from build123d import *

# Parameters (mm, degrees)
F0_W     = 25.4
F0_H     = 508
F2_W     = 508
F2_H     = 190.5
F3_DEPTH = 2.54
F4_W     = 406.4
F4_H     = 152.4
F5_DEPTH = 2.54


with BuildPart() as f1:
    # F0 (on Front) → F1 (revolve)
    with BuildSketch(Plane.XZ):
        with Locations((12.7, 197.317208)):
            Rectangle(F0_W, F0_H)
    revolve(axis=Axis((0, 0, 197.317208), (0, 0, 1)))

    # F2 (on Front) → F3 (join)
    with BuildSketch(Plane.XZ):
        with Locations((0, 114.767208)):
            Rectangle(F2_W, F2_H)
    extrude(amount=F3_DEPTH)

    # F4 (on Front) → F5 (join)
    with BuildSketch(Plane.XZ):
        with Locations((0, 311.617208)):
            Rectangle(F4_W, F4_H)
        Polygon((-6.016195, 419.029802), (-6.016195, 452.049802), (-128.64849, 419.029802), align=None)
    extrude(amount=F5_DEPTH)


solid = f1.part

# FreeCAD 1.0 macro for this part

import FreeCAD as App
import Part
import Sketcher
from FreeCAD import Vector
Q = App.Units.Quantity


def add_polygon(sketch, points):
    """Adds a closed chain of lines whose ends are joined by coincident constraints."""
    first, n = sketch.GeometryCount, len(points)
    for a, b in zip(points, points[1:] + points[:1]):
        sketch.addGeometry(Part.LineSegment(App.Vector(*a, 0), App.Vector(*b, 0)), False)
    for i in range(n):
        sketch.addConstraint(Sketcher.Constraint("Coincident", first + i, 2, first + (i + 1) % n, 1))

doc = App.newDocument("Part")
params = doc.addObject("Spreadsheet::Sheet", "Params")
for row, (alias, value) in enumerate([
    ("sketch1_width", "1 in"),
    ("sketch1_height", "20 in"),
    ("revolution_angle", "360 deg"),
    ("sketch2_width", "20 in"),
    ("sketch2_height", "7.5 in"),
    ("pad1_length", "0.1 in"),
    ("sketch3_width", "16 in"),
    ("sketch3_height", "6 in"),
    ("sketch3_length", "5 in"),
    ("sketch3_height2", "1.3 in"),
    ("pad2_length", "0.1 in"),
], start=1):
    params.set(f"A{row}", alias)
    params.set(f"B{row}", "=" + value)
    params.setAlias(f"B{row}", alias)

body = doc.addObject("PartDesign::Body", "Body")

sketch1 = doc.addObject("Sketcher::SketchObject", "Sketch")
body.addObject(sketch1)
sketch1.AttachmentSupport = (doc.XZ_Plane, [""])
sketch1.MapMode = "FlatFace"
add_polygon(sketch1, [(0, 451.317208), (0, -56.682792), (25.4, -56.682792), (25.4, 451.317208)])
sketch1.addConstraint([
    Sketcher.Constraint("Vertical", 0),
    Sketcher.Constraint("Horizontal", 1),
    Sketcher.Constraint("Vertical", 2),
    Sketcher.Constraint("Horizontal", 3),
    Sketcher.Constraint("PointOnObject", 0, 2, -2),
    Sketcher.Constraint("DistanceX", 1, 1, 1, 2, Q("1 in")),
    Sketcher.Constraint("DistanceY", 0, 2, 0, 1, Q("20 in")),
    Sketcher.Constraint("DistanceY", -1, 1, 2, 2, 451.317208),
])
sketch1.setExpression("Constraints[9]", "Params.sketch1_width")
sketch1.setExpression("Constraints[10]", "Params.sketch1_height")
revolution = doc.addObject("PartDesign::Revolution", "Revolution")
body.addObject(revolution)
revolution.Profile = sketch1
revolution.ReferenceAxis = (sketch1, ["V_Axis"])
revolution.setExpression("Angle", "Params.revolution_angle")

sketch2 = doc.addObject("Sketcher::SketchObject", "Sketch001")
body.addObject(sketch2)
sketch2.AttachmentSupport = (doc.XZ_Plane, [""])
sketch2.MapMode = "FlatFace"
add_polygon(sketch2, [(-254, 210.017208), (-254, 19.517208), (254, 19.517208), (254, 210.017208)])
sketch2.addConstraint([
    Sketcher.Constraint("Vertical", 0),
    Sketcher.Constraint("Horizontal", 1),
    Sketcher.Constraint("Vertical", 2),
    Sketcher.Constraint("Horizontal", 3),
    Sketcher.Constraint("DistanceX", 1, 1, 1, 2, Q("20 in")),
    Sketcher.Constraint("DistanceY", 0, 2, 0, 1, Q("7.5 in")),
    Sketcher.Constraint("DistanceX", 0, 2, -1, 1, Q("10 in")),
    Sketcher.Constraint("DistanceY", -1, 1, 0, 2, 19.517208),
])
sketch2.setExpression("Constraints[8]", "Params.sketch2_width")
sketch2.setExpression("Constraints[9]", "Params.sketch2_height")
pad1 = doc.addObject("PartDesign::Pad", "Pad")
body.addObject(pad1)
pad1.Profile = sketch2
pad1.setExpression("Length", "Params.pad1_length")

sketch3 = doc.addObject("Sketcher::SketchObject", "Sketch002")
body.addObject(sketch3)
sketch3.AttachmentSupport = (doc.XZ_Plane, [""])
sketch3.MapMode = "FlatFace"
add_polygon(sketch3, [(-203.2, 387.817208), (-203.2, 235.417208), (203.2, 235.417208), (203.2, 387.817208)])
add_polygon(sketch3, [(-6.016195, 419.029802), (-6.016195, 452.049802), (-128.64849, 419.029802)])
sketch3.addConstraint([
    Sketcher.Constraint("Vertical", 0),
    Sketcher.Constraint("Horizontal", 1),
    Sketcher.Constraint("Vertical", 2),
    Sketcher.Constraint("Horizontal", 3),
    Sketcher.Constraint("Vertical", 4),
    Sketcher.Constraint("Horizontal", 6),
    Sketcher.Constraint("DistanceX", 1, 1, 1, 2, Q("16 in")),
    Sketcher.Constraint("DistanceY", 0, 2, 0, 1, Q("6 in")),
    Sketcher.Constraint("Distance", 5, Q("5 in")),
    Sketcher.Constraint("DistanceY", 4, 1, 4, 2, Q("1.3 in")),
    Sketcher.Constraint("DistanceX", 0, 2, -1, 1, Q("8 in")),
    Sketcher.Constraint("DistanceY", -1, 1, 4, 2, 452.049802),
    Sketcher.Constraint("DistanceY", -1, 1, 2, 2, 387.817208),
    Sketcher.Constraint("DistanceX", 5, 2, -1, 1, 128.64849),
])
sketch3.setExpression("Constraints[13]", "Params.sketch3_width")
sketch3.setExpression("Constraints[14]", "Params.sketch3_height")
sketch3.setExpression("Constraints[15]", "Params.sketch3_length")
sketch3.setExpression("Constraints[16]", "Params.sketch3_height2")
pad2 = doc.addObject("PartDesign::Pad", "Pad001")
body.addObject(pad2)
pad2.Profile = sketch3
pad2.setExpression("Length", "Params.pad2_length")

doc.recompute()
